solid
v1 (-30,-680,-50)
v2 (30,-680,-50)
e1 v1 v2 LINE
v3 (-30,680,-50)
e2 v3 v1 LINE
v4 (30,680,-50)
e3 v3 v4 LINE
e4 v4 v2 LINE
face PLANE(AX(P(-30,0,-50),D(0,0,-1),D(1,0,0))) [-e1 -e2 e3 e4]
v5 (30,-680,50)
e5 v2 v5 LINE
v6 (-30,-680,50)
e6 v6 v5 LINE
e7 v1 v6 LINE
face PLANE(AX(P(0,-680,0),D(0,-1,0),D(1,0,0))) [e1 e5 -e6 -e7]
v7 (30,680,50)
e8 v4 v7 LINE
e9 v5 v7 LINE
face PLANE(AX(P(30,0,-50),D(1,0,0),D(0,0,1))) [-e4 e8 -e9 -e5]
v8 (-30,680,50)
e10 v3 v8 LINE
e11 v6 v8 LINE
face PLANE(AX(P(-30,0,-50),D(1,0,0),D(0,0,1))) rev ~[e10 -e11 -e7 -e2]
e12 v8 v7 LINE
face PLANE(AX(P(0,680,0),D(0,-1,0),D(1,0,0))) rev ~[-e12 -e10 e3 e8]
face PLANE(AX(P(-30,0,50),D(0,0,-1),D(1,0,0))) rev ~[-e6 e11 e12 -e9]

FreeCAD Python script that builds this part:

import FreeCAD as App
import Part
import Sketcher

V = App.Vector
Q = App.Units.Quantity

doc = App.newDocument("Part")
body = doc.addObject("PartDesign::Body", "Body")

sketch1 = body.newObject("Sketcher::SketchObject", "Sketch")
sketch1.AttachmentSupport = (doc.getObject("XZ_Plane"), [""])
sketch1.MapMode = "FlatFace"
sketch1.addGeometry([
    Part.LineSegment(V(-30, 50, 0), V(-30, -50, 0)),
    Part.LineSegment(V(-30, -50, 0), V(30, -50, 0)),
    Part.LineSegment(V(30, -50, 0), V(30, 50, 0)),
    Part.LineSegment(V(30, 50, 0), V(-30, 50, 0)),
], False)
sketch1.addConstraint([
    Sketcher.Constraint("Coincident", 0, 2, 1, 1),
    Sketcher.Constraint("Coincident", 1, 2, 2, 1),
    Sketcher.Constraint("Coincident", 2, 2, 3, 1),
    Sketcher.Constraint("Coincident", 3, 2, 0, 1),
    Sketcher.Constraint("Vertical", 0),
    Sketcher.Constraint("Horizontal", 1),
    Sketcher.Constraint("Vertical", 2),
    Sketcher.Constraint("Horizontal", 3),
    Sketcher.Constraint("Symmetric", 0, 2, 2, 2, -1, 1),
    Sketcher.Constraint("DistanceX", 1, 1, 1, 2, Q("60 mm")),
    Sketcher.Constraint("DistanceY", 0, 2, 0, 1, Q("100 mm")),
])
pad1 = body.newObject("PartDesign::Pad", "Pad")
pad1.Profile = sketch1
pad1.Length = 1360
pad1.Midplane = True

doc.recompute()
